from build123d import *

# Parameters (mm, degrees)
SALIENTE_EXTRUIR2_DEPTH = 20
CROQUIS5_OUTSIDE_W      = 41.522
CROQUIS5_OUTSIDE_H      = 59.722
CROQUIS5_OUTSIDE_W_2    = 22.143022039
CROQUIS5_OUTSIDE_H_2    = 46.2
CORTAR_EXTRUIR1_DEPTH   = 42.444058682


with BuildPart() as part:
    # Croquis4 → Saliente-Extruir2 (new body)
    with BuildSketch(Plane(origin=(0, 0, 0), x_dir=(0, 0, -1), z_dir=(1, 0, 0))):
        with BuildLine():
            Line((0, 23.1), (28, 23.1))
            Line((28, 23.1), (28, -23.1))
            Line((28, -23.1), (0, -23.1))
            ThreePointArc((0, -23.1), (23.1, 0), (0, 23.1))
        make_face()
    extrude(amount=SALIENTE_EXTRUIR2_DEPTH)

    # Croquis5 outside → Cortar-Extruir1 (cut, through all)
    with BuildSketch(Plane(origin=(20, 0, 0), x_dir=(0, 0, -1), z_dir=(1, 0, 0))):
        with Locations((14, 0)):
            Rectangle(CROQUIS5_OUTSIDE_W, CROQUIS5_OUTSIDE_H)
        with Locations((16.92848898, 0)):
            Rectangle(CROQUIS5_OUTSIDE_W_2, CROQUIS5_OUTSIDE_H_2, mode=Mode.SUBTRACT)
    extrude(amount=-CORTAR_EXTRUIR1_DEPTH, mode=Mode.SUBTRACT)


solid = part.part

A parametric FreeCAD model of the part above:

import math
import FreeCAD as App
import Part
import Sketcher
Q = App.Units.Quantity

doc = App.newDocument("Part")
body = doc.addObject("PartDesign::Body", "Body")

sketch1 = body.newObject("Sketcher::SketchObject", "Sketch")
sketch1.AttachmentSupport = (doc.getObject("YZ_Plane"), [""])
sketch1.MapMode = "FlatFace"
sketch1.addGeometry([
    Part.LineSegment(App.Vector(23, -28, 0), App.Vector(23, 0, 0)),
    Part.ArcOfCircle(Part.Circle(App.Vector(0, 0, 0), App.Vector(0, 0, 1), 23), math.radians(180), math.radians(360)),
    Part.LineSegment(App.Vector(-23, 0, 0), App.Vector(-23, -28, 0)),
    Part.LineSegment(App.Vector(-23, -28, 0), App.Vector(23, -28, 0)),
], False)
sketch1.addConstraint([
    Sketcher.Constraint("Tangent", 0, 2, 1, 2),
    Sketcher.Constraint("Tangent", 1, 1, 2, 1),
    Sketcher.Constraint("Coincident", 2, 2, 3, 1),
    Sketcher.Constraint("Coincident", 3, 2, 0, 1),
    Sketcher.Constraint("Vertical", 0),
    Sketcher.Constraint("Vertical", 2),
    Sketcher.Constraint("Horizontal", 3),
    Sketcher.Constraint("Coincident", 1, 3, -1, 1),
    Sketcher.Constraint("Radius", 1, Q("23.1 mm")),
    Sketcher.Constraint("DistanceY", 0, 1, 0, 2, Q("28 mm")),
])
pad1 = body.newObject("PartDesign::Pad", "Pad")
pad1.Profile = sketch1
pad1.Length = 20

sketch2 = body.newObject("Sketcher::SketchObject", "Sketch001")
sketch2.AttachmentSupport = (doc.getObject("YZ_Plane"), [""])
sketch2.MapMode = "FlatFace"
sketch2.AttachmentOffset = App.Placement(App.Vector(0, 0, 20), App.Rotation())
sketch2.addGeometry([
    Part.LineSegment(App.Vector(30, 7, 0), App.Vector(-30, 7, 0)),
    Part.LineSegment(App.Vector(-30, 7, 0), App.Vector(-30, -35, 0)),
    Part.LineSegment(App.Vector(-30, -35, 0), App.Vector(30, -35, 0)),
    Part.LineSegment(App.Vector(30, -35, 0), App.Vector(30, 7, 0)),
    Part.LineSegment(App.Vector(-23, -28, 0), App.Vector(-23, -6, 0)),
    Part.LineSegment(App.Vector(-23, -6, 0), App.Vector(23, -6, 0)),
    Part.LineSegment(App.Vector(23, -6, 0), App.Vector(23, -28, 0)),
    Part.LineSegment(App.Vector(23, -28, 0), App.Vector(-23, -28, 0)),
], False)
sketch2.addConstraint([
    Sketcher.Constraint("Coincident", 0, 2, 1, 1),
    Sketcher.Constraint("Coincident", 1, 2, 2, 1),
    Sketcher.Constraint("Coincident", 2, 2, 3, 1),
    Sketcher.Constraint("Coincident", 3, 2, 0, 1),
    Sketcher.Constraint("Coincident", 4, 2, 5, 1),
    Sketcher.Constraint("Coincident", 5, 2, 6, 1),
    Sketcher.Constraint("Coincident", 6, 2, 7, 1),
    Sketcher.Constraint("Coincident", 7, 2, 4, 1),
    Sketcher.Constraint("Horizontal", 0),
    Sketcher.Constraint("Vertical", 1),
    Sketcher.Constraint("Horizontal", 2),
    Sketcher.Constraint("Vertical", 3),
    Sketcher.Constraint("Vertical", 4),
    Sketcher.Constraint("Horizontal", 5),
    Sketcher.Constraint("Vertical", 6),
    Sketcher.Constraint("Horizontal", 7),
    Sketcher.Constraint("DistanceX", 5, 1, 5, 2, Q("46.2 mm")),
    Sketcher.Constraint("DistanceY", 6, 2, -1, 1, Q("28 mm")),
    Sketcher.Constraint("DistanceX", 4, 2, -1, 1, Q("23.1 mm")),
    Sketcher.Constraint("DistanceX", 0, 2, 0, 1, Q("59.722 mm")),
    Sketcher.Constraint("DistanceY", 1, 2, 1, 1, Q("41.522 mm")),
    Sketcher.Constraint("DistanceX", 0, 2, -1, 1, Q("29.861 mm")),
    Sketcher.Constraint("DistanceY", -1, 1, 0, 2, Q("6.761 mm")),
    Sketcher.Constraint("DistanceY", 4, 1, 4, 2, Q("22.143022 mm")),
])
pocket1 = body.newObject("PartDesign::Pocket", "Pocket")
pocket1.Profile = sketch2
pocket1.Type = "ThroughAll"

doc.recompute()
